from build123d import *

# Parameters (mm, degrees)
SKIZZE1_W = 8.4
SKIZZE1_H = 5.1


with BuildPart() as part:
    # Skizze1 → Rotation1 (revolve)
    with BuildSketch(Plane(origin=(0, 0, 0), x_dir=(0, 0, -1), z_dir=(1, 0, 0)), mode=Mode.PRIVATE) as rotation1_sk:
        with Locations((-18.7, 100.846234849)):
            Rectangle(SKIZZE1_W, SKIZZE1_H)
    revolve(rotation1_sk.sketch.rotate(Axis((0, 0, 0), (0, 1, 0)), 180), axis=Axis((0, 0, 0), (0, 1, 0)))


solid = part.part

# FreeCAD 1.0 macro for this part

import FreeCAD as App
import Part
import Sketcher
Q = App.Units.Quantity

doc = App.newDocument("Part")
body = doc.addObject("PartDesign::Body", "Body")

# Sketch on YZ plane
sketch1 = body.newObject("Sketcher::SketchObject", "Sketch")
sketch1.AttachmentSupport = (doc.getObject("YZ_Plane"), [""])
sketch1.MapMode = "FlatFace"
sketch1.addGeometry(Part.LineSegment(App.Vector(103, 23, 0), App.Vector(98, 23, 0)), False)
sketch1.addGeometry(Part.LineSegment(App.Vector(98, 23, 0), App.Vector(98, 14, 0)), False)
sketch1.addGeometry(Part.LineSegment(App.Vector(98, 14, 0), App.Vector(103, 14, 0)), False)
sketch1.addGeometry(Part.LineSegment(App.Vector(103, 14, 0), App.Vector(103, 23, 0)), False)
sketch1.addConstraint(Sketcher.Constraint("Coincident", 0, 2, 1, 1))
sketch1.addConstraint(Sketcher.Constraint("Coincident", 1, 2, 2, 1))
sketch1.addConstraint(Sketcher.Constraint("Coincident", 2, 2, 3, 1))
sketch1.addConstraint(Sketcher.Constraint("Coincident", 3, 2, 0, 1))
sketch1.addConstraint(Sketcher.Constraint("Horizontal", 0))
sketch1.addConstraint(Sketcher.Constraint("Vertical", 1))
sketch1.addConstraint(Sketcher.Constraint("Horizontal", 2))
sketch1.addConstraint(Sketcher.Constraint("Vertical", 3))
sketch1.addConstraint(Sketcher.Constraint("DistanceX", 0, 2, 0, 1, Q("5.1 mm")))
sketch1.addConstraint(Sketcher.Constraint("DistanceY", 1, 2, 1, 1, Q("8.4 mm")))
sketch1.addConstraint(Sketcher.Constraint("DistanceY", -1, 1, 0, 2, Q("22.9 mm")))
sketch1.addConstraint(Sketcher.Constraint("DistanceX", -1, 1, 0, 2, Q("98.296235 mm")))
revolution = body.newObject("PartDesign::Revolution", "Revolution")
revolution.Profile = sketch1
revolution.ReferenceAxis = (sketch1, ["H_Axis"])
revolution.Angle = 360

doc.recompute()
